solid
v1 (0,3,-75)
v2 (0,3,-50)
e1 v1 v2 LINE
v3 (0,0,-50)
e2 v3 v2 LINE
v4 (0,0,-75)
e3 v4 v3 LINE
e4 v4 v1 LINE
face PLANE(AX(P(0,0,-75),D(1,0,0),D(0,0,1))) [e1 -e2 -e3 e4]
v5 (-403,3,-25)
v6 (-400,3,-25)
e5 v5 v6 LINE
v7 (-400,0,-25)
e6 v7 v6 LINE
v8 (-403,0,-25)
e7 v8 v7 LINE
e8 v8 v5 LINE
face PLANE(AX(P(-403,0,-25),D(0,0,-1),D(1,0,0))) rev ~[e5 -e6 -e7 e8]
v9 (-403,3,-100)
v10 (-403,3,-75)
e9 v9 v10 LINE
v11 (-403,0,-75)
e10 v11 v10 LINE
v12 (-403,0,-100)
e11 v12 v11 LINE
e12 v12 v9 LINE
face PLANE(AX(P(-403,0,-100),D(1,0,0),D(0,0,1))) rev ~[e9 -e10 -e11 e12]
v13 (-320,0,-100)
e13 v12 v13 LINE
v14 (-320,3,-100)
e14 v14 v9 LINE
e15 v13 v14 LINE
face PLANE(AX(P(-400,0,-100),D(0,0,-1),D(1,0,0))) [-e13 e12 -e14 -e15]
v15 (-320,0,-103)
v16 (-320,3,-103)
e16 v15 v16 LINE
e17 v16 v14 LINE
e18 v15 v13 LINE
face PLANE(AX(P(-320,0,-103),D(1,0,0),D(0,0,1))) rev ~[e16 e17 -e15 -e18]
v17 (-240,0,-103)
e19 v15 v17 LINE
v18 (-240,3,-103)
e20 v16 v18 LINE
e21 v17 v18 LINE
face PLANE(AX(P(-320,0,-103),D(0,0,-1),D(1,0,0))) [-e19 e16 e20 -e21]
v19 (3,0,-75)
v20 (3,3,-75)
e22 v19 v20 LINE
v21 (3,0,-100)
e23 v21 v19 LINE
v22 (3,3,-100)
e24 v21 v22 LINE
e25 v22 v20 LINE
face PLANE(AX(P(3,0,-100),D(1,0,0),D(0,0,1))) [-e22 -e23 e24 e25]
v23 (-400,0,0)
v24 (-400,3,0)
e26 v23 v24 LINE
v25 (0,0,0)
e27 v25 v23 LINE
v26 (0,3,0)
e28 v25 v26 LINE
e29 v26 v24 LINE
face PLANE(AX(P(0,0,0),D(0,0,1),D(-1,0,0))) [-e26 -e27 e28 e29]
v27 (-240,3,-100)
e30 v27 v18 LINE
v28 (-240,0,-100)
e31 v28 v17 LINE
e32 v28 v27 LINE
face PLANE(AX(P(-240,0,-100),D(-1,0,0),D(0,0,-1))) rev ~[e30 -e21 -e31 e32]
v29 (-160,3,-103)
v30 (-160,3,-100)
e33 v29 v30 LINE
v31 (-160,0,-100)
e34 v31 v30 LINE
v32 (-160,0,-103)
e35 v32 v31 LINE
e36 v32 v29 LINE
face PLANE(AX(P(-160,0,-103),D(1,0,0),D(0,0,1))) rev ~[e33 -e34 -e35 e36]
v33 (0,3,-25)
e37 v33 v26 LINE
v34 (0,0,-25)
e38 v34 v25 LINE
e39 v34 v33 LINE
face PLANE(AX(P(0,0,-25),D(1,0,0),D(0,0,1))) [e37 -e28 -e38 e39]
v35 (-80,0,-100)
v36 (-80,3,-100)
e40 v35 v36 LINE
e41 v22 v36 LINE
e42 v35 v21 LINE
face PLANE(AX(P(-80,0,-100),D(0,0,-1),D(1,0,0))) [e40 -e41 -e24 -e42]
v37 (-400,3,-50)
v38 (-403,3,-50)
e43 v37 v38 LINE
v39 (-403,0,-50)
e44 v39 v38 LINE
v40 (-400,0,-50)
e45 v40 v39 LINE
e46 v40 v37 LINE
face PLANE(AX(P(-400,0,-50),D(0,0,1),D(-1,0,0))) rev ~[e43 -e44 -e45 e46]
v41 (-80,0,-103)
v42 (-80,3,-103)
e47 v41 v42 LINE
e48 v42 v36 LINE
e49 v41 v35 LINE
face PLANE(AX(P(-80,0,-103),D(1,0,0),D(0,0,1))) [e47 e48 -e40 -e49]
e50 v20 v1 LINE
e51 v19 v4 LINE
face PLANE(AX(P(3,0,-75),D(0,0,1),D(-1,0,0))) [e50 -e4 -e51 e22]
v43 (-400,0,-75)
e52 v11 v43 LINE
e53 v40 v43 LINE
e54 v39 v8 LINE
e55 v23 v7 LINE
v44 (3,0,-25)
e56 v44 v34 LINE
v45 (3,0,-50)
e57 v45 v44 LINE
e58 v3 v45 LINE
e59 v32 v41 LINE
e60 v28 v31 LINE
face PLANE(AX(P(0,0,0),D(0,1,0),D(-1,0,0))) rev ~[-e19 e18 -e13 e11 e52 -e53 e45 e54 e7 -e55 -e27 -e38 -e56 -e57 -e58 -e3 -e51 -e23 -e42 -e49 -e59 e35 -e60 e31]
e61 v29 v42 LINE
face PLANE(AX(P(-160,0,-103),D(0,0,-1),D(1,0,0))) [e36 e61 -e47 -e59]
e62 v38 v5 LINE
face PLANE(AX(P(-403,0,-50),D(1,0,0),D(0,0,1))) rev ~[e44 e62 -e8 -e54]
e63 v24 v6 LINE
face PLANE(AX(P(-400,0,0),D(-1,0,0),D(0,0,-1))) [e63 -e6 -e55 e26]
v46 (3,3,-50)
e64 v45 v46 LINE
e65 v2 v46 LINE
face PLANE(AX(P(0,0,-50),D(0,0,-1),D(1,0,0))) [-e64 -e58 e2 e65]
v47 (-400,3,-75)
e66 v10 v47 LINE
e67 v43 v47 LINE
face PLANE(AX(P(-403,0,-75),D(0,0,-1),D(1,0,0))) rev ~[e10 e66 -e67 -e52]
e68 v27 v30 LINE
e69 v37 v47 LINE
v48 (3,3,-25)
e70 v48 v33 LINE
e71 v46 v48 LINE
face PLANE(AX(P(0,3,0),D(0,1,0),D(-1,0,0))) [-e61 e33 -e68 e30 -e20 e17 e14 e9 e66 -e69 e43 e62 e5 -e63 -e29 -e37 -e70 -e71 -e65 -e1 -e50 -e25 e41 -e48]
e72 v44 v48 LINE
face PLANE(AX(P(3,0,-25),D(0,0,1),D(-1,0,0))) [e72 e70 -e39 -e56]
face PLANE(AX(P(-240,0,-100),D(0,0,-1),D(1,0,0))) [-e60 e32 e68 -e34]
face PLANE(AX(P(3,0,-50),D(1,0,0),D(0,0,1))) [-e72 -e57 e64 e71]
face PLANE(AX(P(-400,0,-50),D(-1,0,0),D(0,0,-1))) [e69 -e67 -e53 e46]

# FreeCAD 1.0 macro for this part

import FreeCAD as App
import Part
import Sketcher

V = App.Vector
Q = App.Units.Quantity

doc = App.newDocument("Part")
body = doc.addObject("PartDesign::Body", "Body")

# Sketch on XZ plane
sketch1 = body.newObject("Sketcher::SketchObject", "Sketch")
sketch1.AttachmentSupport = (doc.getObject("XZ_Plane"), [""])
sketch1.MapMode = "FlatFace"
sketch1.addGeometry(Part.LineSegment(V(-400, 0, 0), V(0, 0, 0)), False)
sketch1.addGeometry(Part.LineSegment(V(0, 0, 0), V(0, -25, 0)), False)
sketch1.addGeometry(Part.LineSegment(V(0, -25, 0), V(3, -25, 0)), False)
sketch1.addGeometry(Part.LineSegment(V(3, -25, 0), V(3, -50, 0)), False)
sketch1.addGeometry(Part.LineSegment(V(3, -50, 0), V(0, -50, 0)), False)
sketch1.addGeometry(Part.LineSegment(V(0, -50, 0), V(0, -75, 0)), False)
sketch1.addGeometry(Part.LineSegment(V(0, -75, 0), V(3, -75, 0)), False)
sketch1.addGeometry(Part.LineSegment(V(3, -75, 0), V(3, -100, 0)), False)
sketch1.addGeometry(Part.LineSegment(V(3, -100, 0), V(-80, -100, 0)), False)
sketch1.addGeometry(Part.LineSegment(V(-80, -100, 0), V(-80, -103, 0)), False)
sketch1.addGeometry(Part.LineSegment(V(-80, -103, 0), V(-160, -103, 0)), False)
sketch1.addGeometry(Part.LineSegment(V(-160, -103, 0), V(-160, -100, 0)), False)
sketch1.addGeometry(Part.LineSegment(V(-160, -100, 0), V(-240, -100, 0)), False)
sketch1.addGeometry(Part.LineSegment(V(-240, -100, 0), V(-240, -103, 0)), False)
sketch1.addGeometry(Part.LineSegment(V(-240, -103, 0), V(-320, -103, 0)), False)
sketch1.addGeometry(Part.LineSegment(V(-320, -103, 0), V(-320, -100, 0)), False)
sketch1.addGeometry(Part.LineSegment(V(-320, -100, 0), V(-403, -100, 0)), False)
sketch1.addGeometry(Part.LineSegment(V(-403, -100, 0), V(-403, -75, 0)), False)
sketch1.addGeometry(Part.LineSegment(V(-403, -75, 0), V(-400, -75, 0)), False)
sketch1.addGeometry(Part.LineSegment(V(-400, -75, 0), V(-400, -50, 0)), False)
sketch1.addGeometry(Part.LineSegment(V(-400, -50, 0), V(-403, -50, 0)), False)
sketch1.addGeometry(Part.LineSegment(V(-403, -50, 0), V(-403, -25, 0)), False)
sketch1.addGeometry(Part.LineSegment(V(-403, -25, 0), V(-400, -25, 0)), False)
sketch1.addGeometry(Part.LineSegment(V(-400, -25, 0), V(-400, 0, 0)), False)
sketch1.addConstraint(Sketcher.Constraint("Coincident", 0, 2, 1, 1))
sketch1.addConstraint(Sketcher.Constraint("Coincident", 1, 2, 2, 1))
sketch1.addConstraint(Sketcher.Constraint("Coincident", 2, 2, 3, 1))
sketch1.addConstraint(Sketcher.Constraint("Coincident", 3, 2, 4, 1))
sketch1.addConstraint(Sketcher.Constraint("Coincident", 4, 2, 5, 1))
sketch1.addConstraint(Sketcher.Constraint("Coincident", 5, 2, 6, 1))
sketch1.addConstraint(Sketcher.Constraint("Coincident", 6, 2, 7, 1))
sketch1.addConstraint(Sketcher.Constraint("Coincident", 7, 2, 8, 1))
sketch1.addConstraint(Sketcher.Constraint("Coincident", 8, 2, 9, 1))
sketch1.addConstraint(Sketcher.Constraint("Coincident", 9, 2, 10, 1))
sketch1.addConstraint(Sketcher.Constraint("Coincident", 10, 2, 11, 1))
sketch1.addConstraint(Sketcher.Constraint("Coincident", 11, 2, 12, 1))
sketch1.addConstraint(Sketcher.Constraint("Coincident", 12, 2, 13, 1))
sketch1.addConstraint(Sketcher.Constraint("Coincident", 13, 2, 14, 1))
sketch1.addConstraint(Sketcher.Constraint("Coincident", 14, 2, 15, 1))
sketch1.addConstraint(Sketcher.Constraint("Coincident", 15, 2, 16, 1))
sketch1.addConstraint(Sketcher.Constraint("Coincident", 16, 2, 17, 1))
sketch1.addConstraint(Sketcher.Constraint("Coincident", 17, 2, 18, 1))
sketch1.addConstraint(Sketcher.Constraint("Coincident", 18, 2, 19, 1))
sketch1.addConstraint(Sketcher.Constraint("Coincident", 19, 2, 20, 1))
sketch1.addConstraint(Sketcher.Constraint("Coincident", 20, 2, 21, 1))
sketch1.addConstraint(Sketcher.Constraint("Coincident", 21, 2, 22, 1))
sketch1.addConstraint(Sketcher.Constraint("Coincident", 22, 2, 23, 1))
sketch1.addConstraint(Sketcher.Constraint("Coincident", 23, 2, 0, 1))
sketch1.addConstraint(Sketcher.Constraint("Horizontal", 0))
sketch1.addConstraint(Sketcher.Constraint("Vertical", 1))
sketch1.addConstraint(Sketcher.Constraint("Horizontal", 2))
sketch1.addConstraint(Sketcher.Constraint("Vertical", 3))
sketch1.addConstraint(Sketcher.Constraint("Horizontal", 4))
sketch1.addConstraint(Sketcher.Constraint("Vertical", 5))
sketch1.addConstraint(Sketcher.Constraint("Horizontal", 6))
sketch1.addConstraint(Sketcher.Constraint("Vertical", 7))
sketch1.addConstraint(Sketcher.Constraint("Horizontal", 8))
sketch1.addConstraint(Sketcher.Constraint("Vertical", 9))
sketch1.addConstraint(Sketcher.Constraint("Horizontal", 10))
sketch1.addConstraint(Sketcher.Constraint("Vertical", 11))
sketch1.addConstraint(Sketcher.Constraint("Horizontal", 12))
sketch1.addConstraint(Sketcher.Constraint("Vertical", 13))
sketch1.addConstraint(Sketcher.Constraint("Horizontal", 14))
sketch1.addConstraint(Sketcher.Constraint("Vertical", 15))
sketch1.addConstraint(Sketcher.Constraint("Horizontal", 16))
sketch1.addConstraint(Sketcher.Constraint("Vertical", 17))
sketch1.addConstraint(Sketcher.Constraint("Horizontal", 18))
sketch1.addConstraint(Sketcher.Constraint("Vertical", 19))
sketch1.addConstraint(Sketcher.Constraint("Horizontal", 20))
sketch1.addConstraint(Sketcher.Constraint("Vertical", 21))
sketch1.addConstraint(Sketcher.Constraint("Horizontal", 22))
sketch1.addConstraint(Sketcher.Constraint("Vertical", 23))
sketch1.addConstraint(Sketcher.Constraint("Coincident", 0, 2, -1, 1))
sketch1.addConstraint(Sketcher.Constraint("PointOnObject", 4, 2, -2))
sketch1.addConstraint(Sketcher.Constraint("Horizontal", 8, 2, 11, 2))
sketch1.addConstraint(Sketcher.Constraint("Horizontal", 10, 2, 13, 2))
sketch1.addConstraint(Sketcher.Constraint("Horizontal", 12, 2, 15, 2))
sketch1.addConstraint(Sketcher.Constraint("Horizontal", 6, 2, 17, 2))
sketch1.addConstraint(Sketcher.Constraint("Horizontal", 4, 2, 19, 2))
sketch1.addConstraint(Sketcher.Constraint("Horizontal", 2, 2, 21, 2))
sketch1.addConstraint(Sketcher.Constraint("Vertical", 3, 2, 6, 2))
sketch1.addConstraint(Sketcher.Constraint("Vertical", 17, 2, 20, 2))
sketch1.addConstraint(Sketcher.Constraint("Vertical", 19, 2, 22, 2))
sketch1.addConstraint(Sketcher.Constraint("Equal", 10, 12))
sketch1.addConstraint(Sketcher.Constraint("Equal", 12, 14))
sketch1.addConstraint(Sketcher.Constraint("Equal", 8, 16))
sketch1.addConstraint(Sketcher.Constraint("Equal", 6, 18))
sketch1.addConstraint(Sketcher.Constraint("Equal", 1, 3))
sketch1.addConstraint(Sketcher.Constraint("Equal", 3, 5))
sketch1.addConstraint(Sketcher.Constraint("Equal", 5, 7))
sketch1.addConstraint(Sketcher.Constraint("Equal", 22, 9))
sketch1.addConstraint(Sketcher.Constraint("DistanceX", 0, 1, 0, 2, Q("400 mm")))
sketch1.addConstraint(Sketcher.Constraint("DistanceX", 2, 1, 2, 2, Q("3 mm")))
sketch1.addConstraint(Sketcher.Constraint("DistanceX", 10, 2, 10, 1, Q("80 mm")))
sketch1.addConstraint(Sketcher.Constraint("DistanceY", 1, 2, 1, 1, Q("25 mm")))
pad1 = body.newObject("PartDesign::Pad", "Pad")
pad1.Profile = sketch1
pad1.Length = 3
pad1.Reversed = True

doc.recompute()
